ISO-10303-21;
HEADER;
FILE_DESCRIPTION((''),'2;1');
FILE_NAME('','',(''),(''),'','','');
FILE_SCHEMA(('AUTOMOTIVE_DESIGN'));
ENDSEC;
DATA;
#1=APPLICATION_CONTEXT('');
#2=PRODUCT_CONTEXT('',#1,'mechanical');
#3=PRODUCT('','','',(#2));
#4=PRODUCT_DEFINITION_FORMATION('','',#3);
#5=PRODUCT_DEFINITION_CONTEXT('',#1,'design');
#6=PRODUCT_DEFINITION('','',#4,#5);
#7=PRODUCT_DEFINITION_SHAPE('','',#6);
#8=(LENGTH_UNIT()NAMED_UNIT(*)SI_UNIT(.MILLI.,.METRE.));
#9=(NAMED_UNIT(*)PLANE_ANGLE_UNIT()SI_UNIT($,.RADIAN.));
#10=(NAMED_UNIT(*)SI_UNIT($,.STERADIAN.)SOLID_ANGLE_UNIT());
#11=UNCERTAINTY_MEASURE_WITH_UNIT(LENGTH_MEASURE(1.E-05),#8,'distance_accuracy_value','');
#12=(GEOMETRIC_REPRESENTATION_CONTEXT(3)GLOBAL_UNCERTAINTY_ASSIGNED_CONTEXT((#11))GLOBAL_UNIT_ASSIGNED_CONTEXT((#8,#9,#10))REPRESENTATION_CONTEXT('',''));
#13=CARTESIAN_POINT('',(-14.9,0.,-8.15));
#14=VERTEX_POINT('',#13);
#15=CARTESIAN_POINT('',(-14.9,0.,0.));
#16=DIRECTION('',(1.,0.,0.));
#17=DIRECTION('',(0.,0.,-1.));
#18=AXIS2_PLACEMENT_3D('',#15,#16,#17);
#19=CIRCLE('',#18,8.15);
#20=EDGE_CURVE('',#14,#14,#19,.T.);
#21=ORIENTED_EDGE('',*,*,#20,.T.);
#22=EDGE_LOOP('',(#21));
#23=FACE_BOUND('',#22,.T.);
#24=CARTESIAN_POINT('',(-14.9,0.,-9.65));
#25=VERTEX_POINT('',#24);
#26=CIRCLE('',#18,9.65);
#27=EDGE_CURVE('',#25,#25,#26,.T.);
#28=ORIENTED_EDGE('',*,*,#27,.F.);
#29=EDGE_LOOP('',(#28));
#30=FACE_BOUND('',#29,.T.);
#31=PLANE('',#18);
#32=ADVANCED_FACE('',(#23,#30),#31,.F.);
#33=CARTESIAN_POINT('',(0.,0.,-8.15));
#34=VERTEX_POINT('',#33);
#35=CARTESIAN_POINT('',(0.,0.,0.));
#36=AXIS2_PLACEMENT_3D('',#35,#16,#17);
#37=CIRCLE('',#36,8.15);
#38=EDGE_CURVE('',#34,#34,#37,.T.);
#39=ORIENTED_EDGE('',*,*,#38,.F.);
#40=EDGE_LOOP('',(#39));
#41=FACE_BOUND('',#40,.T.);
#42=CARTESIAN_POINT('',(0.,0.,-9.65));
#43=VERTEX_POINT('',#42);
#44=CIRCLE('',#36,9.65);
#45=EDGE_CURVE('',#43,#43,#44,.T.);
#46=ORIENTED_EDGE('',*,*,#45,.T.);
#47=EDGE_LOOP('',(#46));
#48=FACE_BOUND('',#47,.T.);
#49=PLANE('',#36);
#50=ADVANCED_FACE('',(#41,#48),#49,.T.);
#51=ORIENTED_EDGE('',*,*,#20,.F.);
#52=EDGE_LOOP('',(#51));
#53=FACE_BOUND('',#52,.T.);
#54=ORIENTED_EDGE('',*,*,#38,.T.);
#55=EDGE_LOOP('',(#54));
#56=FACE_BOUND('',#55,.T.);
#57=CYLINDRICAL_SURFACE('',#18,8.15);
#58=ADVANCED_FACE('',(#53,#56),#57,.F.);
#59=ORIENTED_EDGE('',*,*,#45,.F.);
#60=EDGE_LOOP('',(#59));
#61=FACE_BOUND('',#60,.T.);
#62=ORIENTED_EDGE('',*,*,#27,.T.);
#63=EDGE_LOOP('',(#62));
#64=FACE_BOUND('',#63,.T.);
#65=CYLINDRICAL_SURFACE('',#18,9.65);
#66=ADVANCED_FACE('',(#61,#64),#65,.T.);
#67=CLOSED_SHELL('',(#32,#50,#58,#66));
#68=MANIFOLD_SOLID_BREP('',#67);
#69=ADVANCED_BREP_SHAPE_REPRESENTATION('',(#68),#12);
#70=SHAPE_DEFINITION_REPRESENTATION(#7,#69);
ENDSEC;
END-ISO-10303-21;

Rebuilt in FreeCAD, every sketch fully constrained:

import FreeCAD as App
import Part
import Sketcher
from FreeCAD import Vector

doc = App.newDocument("Part")
body = doc.addObject("PartDesign::Body", "Body")

# Sketch on YZ plane
sketch1 = body.newObject("Sketcher::SketchObject", "Sketch")
sketch1.AttachmentSupport = (doc.getObject("YZ_Plane"), [""])
sketch1.MapMode = "FlatFace"
sketch1.addGeometry([
    Part.Circle(Vector(0, 0, 0), Vector(0, 0, 1), 10),
    Part.Circle(Vector(0, 0, 0), Vector(0, 0, 1), 8),
], False)
sketch1.addConstraint([
    Sketcher.Constraint("Coincident", 0, 3, -1, 1),
    Sketcher.Constraint("Coincident", 1, 3, -1, 1),
    Sketcher.Constraint("Diameter", 0, 19.3),
    Sketcher.Constraint("Diameter", 1, 16.3),
])
pad1 = body.newObject("PartDesign::Pad", "Pad")
pad1.Profile = sketch1
pad1.Length = 14.9
pad1.Reversed = True

doc.recompute()
